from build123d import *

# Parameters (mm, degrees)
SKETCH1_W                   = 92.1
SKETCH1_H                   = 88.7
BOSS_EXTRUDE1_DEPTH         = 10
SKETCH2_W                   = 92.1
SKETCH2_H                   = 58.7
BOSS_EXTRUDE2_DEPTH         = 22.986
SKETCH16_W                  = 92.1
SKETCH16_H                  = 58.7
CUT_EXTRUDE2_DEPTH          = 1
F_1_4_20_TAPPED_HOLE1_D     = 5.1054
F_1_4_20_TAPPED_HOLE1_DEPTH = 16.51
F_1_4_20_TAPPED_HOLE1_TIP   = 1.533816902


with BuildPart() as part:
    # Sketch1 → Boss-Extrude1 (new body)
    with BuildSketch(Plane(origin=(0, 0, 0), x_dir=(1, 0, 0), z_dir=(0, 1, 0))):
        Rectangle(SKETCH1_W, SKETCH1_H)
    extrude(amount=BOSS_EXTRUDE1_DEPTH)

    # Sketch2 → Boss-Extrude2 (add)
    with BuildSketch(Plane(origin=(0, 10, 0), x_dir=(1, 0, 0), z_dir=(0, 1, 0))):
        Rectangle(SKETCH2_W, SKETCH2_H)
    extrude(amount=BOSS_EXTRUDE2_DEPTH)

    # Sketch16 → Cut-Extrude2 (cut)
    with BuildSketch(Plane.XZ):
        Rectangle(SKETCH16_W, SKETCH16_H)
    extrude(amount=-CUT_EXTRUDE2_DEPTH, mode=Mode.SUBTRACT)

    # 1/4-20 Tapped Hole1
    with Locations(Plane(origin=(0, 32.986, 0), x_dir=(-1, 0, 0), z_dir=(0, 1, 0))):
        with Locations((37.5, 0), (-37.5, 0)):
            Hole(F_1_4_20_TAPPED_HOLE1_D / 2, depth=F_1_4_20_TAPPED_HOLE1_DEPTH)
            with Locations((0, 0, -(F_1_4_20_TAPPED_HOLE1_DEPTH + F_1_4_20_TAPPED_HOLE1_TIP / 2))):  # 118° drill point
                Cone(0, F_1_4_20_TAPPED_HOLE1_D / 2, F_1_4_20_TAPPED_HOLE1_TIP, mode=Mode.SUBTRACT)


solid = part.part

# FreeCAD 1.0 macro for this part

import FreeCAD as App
import Part
import Sketcher

V = App.Vector


def add_polygon(sketch, points):
    """Adds a closed chain of lines whose ends are joined by coincident constraints."""
    first, n = sketch.GeometryCount, len(points)
    for a, b in zip(points, points[1:] + points[:1]):
        sketch.addGeometry(Part.LineSegment(App.Vector(*a, 0), App.Vector(*b, 0)), False)
    for i in range(n):
        sketch.addConstraint(Sketcher.Constraint("Coincident", first + i, 2, first + (i + 1) % n, 1))

doc = App.newDocument("Part")
body = doc.addObject("PartDesign::Body", "Body")

# Sketch on XZ plane
sketch1 = body.newObject("Sketcher::SketchObject", "Sketch")
sketch1.AttachmentSupport = (doc.getObject("XZ_Plane"), [""])
sketch1.MapMode = "FlatFace"
add_polygon(sketch1, [(-46, -44), (-46, 44), (46, 44), (46, -44)])  # lines 0-3
sketch1.addConstraint(Sketcher.Constraint("Vertical", 0))
sketch1.addConstraint(Sketcher.Constraint("Horizontal", 1))
sketch1.addConstraint(Sketcher.Constraint("Vertical", 2))
sketch1.addConstraint(Sketcher.Constraint("Horizontal", 3))
sketch1.addConstraint(Sketcher.Constraint("Symmetric", 0, 2, 2, 2, -1, 1))
sketch1.addConstraint(Sketcher.Constraint("DistanceX", 1, 1, 1, 2, 92.1))
sketch1.addConstraint(Sketcher.Constraint("DistanceY", 0, 1, 0, 2, 88.7))
pad1 = body.newObject("PartDesign::Pad", "Pad")
pad1.Profile = sketch1
pad1.Length = 10
pad1.Reversed = True

# Sketch on XZ plane
sketch2 = body.newObject("Sketcher::SketchObject", "Sketch001")
sketch2.AttachmentSupport = (doc.getObject("XZ_Plane"), [""])
sketch2.MapMode = "FlatFace"
sketch2.AttachmentOffset = App.Placement(V(0, 0, -10), App.Rotation())
add_polygon(sketch2, [(-46, -29), (-46, 29), (46, 29), (46, -29)])  # lines 0-3
sketch2.addConstraint(Sketcher.Constraint("Vertical", 0))
sketch2.addConstraint(Sketcher.Constraint("Horizontal", 1))
sketch2.addConstraint(Sketcher.Constraint("Vertical", 2))
sketch2.addConstraint(Sketcher.Constraint("Horizontal", 3))
sketch2.addConstraint(Sketcher.Constraint("Symmetric", 0, 2, 2, 2, -1, 1))
sketch2.addConstraint(Sketcher.Constraint("DistanceX", 1, 1, 1, 2, 92.1))
sketch2.addConstraint(Sketcher.Constraint("DistanceY", 0, 1, 0, 2, 58.7))
pad2 = body.newObject("PartDesign::Pad", "Pad001")
pad2.Profile = sketch2
pad2.Length = 22.986
pad2.Reversed = True

# Sketch on XZ plane
sketch3 = body.newObject("Sketcher::SketchObject", "Sketch002")
sketch3.AttachmentSupport = (doc.getObject("XZ_Plane"), [""])
sketch3.MapMode = "FlatFace"
add_polygon(sketch3, [(-46, 29), (-46, -29), (46, -29), (46, 29)])  # lines 0-3
sketch3.addConstraint(Sketcher.Constraint("Vertical", 0))
sketch3.addConstraint(Sketcher.Constraint("Horizontal", 1))
sketch3.addConstraint(Sketcher.Constraint("Vertical", 2))
sketch3.addConstraint(Sketcher.Constraint("Horizontal", 3))
sketch3.addConstraint(Sketcher.Constraint("Symmetric", 0, 2, 2, 2, -1, 1))
sketch3.addConstraint(Sketcher.Constraint("DistanceX", 1, 1, 1, 2, 92.1))
sketch3.addConstraint(Sketcher.Constraint("DistanceY", 0, 2, 0, 1, 58.7))
pocket1 = body.newObject("PartDesign::Pocket", "Pocket")
pocket1.Profile = sketch3
pocket1.Length = 1

# Sketch on XZ plane
sketch4 = body.newObject("Sketcher::SketchObject", "Sketch003")
sketch4.AttachmentSupport = (doc.getObject("XZ_Plane"), [""])
sketch4.MapMode = "FlatFace"
sketch4.AttachmentOffset = App.Placement(V(0, 0, -32.986), App.Rotation())
sketch4.addGeometry(Part.Circle(V(-37.5, 0, 0), V(0, 0, 1), 2.6), False)
sketch4.addGeometry(Part.Circle(V(37.5, 0, 0), V(0, 0, 1), 2.6), False)
sketch4.addConstraint(Sketcher.Constraint("Equal", 0, 1))
sketch4.addConstraint(Sketcher.Constraint("Symmetric", 0, 3, 1, 3, -1, 1))
sketch4.addConstraint(Sketcher.Constraint("PointOnObject", 0, 3, -1))
sketch4.addConstraint(Sketcher.Constraint("DistanceX", 0, 3, 1, 3, 75.0))
sketch4.addConstraint(Sketcher.Constraint("Diameter", 0, 5.1054))
doc.recompute()
hole = body.newObject("PartDesign::Hole", "Hole")
hole.Profile = sketch4
hole.ThreadType = "None"
hole.Diameter = 5.1054
hole.DepthType = "Dimension"
hole.Depth = 16.51
hole.DrillPoint = "Angled"
hole.DrillPointAngle = 118
hole.Reversed = True

doc.recompute()
